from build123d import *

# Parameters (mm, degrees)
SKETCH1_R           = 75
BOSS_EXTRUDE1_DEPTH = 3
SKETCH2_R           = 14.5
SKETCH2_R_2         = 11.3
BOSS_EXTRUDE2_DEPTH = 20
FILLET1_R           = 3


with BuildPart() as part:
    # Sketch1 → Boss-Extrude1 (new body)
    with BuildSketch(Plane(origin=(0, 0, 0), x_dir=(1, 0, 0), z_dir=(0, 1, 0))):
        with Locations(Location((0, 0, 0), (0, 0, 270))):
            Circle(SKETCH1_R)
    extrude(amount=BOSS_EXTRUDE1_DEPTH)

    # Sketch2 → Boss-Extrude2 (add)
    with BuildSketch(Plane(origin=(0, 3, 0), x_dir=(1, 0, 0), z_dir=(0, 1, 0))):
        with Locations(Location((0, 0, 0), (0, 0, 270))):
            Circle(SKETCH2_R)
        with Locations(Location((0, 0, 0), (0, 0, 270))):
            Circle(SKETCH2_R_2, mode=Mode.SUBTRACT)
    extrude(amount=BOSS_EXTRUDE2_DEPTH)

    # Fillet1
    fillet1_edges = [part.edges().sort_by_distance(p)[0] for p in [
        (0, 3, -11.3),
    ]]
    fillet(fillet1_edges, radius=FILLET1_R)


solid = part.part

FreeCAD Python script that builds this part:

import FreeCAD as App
import Part
import Sketcher
from FreeCAD import Vector
Q = App.Units.Quantity


def edges_at(feature, points):
    """Names of the edges that pass closest to the given points."""
    edges = feature.Shape.Edges
    near = lambda p: min(range(len(edges)), key=lambda i: edges[i].distToShape(Part.Vertex(*p))[0])
    return sorted({f"Edge{near(p) + 1}" for p in points})

doc = App.newDocument("Part")
body = doc.addObject("PartDesign::Body", "Body")

# Sketch on XZ plane
sketch1 = body.newObject("Sketcher::SketchObject", "Sketch")
sketch1.AttachmentSupport = (doc.getObject("XZ_Plane"), [""])
sketch1.MapMode = "FlatFace"
sketch1.addGeometry(Part.Circle(Vector(0, 0, 0), Vector(0, 0, 1), 75), False)
sketch1.addConstraint([
    Sketcher.Constraint("Coincident", 0, 3, -1, 1),
    Sketcher.Constraint("Diameter", 0, Q("150 mm")),
])
pad1 = body.newObject("PartDesign::Pad", "Pad")
pad1.Profile = sketch1
pad1.Length = 3
pad1.Reversed = True

# Sketch on XZ plane
sketch2 = body.newObject("Sketcher::SketchObject", "Sketch001")
sketch2.AttachmentSupport = (doc.getObject("XZ_Plane"), [""])
sketch2.MapMode = "FlatFace"
sketch2.AttachmentOffset = App.Placement(Vector(0, 0, -3), App.Rotation())
sketch2.addGeometry([
    Part.Circle(Vector(0, 0, 0), Vector(0, 0, 1), 14),
    Part.Circle(Vector(0, 0, 0), Vector(0, 0, 1), 11),
], False)
sketch2.addConstraint([
    Sketcher.Constraint("Coincident", 0, 3, -1, 1),
    Sketcher.Constraint("Coincident", 1, 3, -1, 1),
    Sketcher.Constraint("Diameter", 0, Q("29 mm")),
    Sketcher.Constraint("Diameter", 1, Q("22.6 mm")),
])
pad2 = body.newObject("PartDesign::Pad", "Pad001")
pad2.Profile = sketch2
pad2.Length = 20
pad2.Reversed = True
doc.recompute()

fillet = body.newObject("PartDesign::Fillet", "Fillet")
fillet.Base = (pad2, edges_at(pad2, [(0, 3, -11.3)]))
fillet.Radius = 3

doc.recompute()
